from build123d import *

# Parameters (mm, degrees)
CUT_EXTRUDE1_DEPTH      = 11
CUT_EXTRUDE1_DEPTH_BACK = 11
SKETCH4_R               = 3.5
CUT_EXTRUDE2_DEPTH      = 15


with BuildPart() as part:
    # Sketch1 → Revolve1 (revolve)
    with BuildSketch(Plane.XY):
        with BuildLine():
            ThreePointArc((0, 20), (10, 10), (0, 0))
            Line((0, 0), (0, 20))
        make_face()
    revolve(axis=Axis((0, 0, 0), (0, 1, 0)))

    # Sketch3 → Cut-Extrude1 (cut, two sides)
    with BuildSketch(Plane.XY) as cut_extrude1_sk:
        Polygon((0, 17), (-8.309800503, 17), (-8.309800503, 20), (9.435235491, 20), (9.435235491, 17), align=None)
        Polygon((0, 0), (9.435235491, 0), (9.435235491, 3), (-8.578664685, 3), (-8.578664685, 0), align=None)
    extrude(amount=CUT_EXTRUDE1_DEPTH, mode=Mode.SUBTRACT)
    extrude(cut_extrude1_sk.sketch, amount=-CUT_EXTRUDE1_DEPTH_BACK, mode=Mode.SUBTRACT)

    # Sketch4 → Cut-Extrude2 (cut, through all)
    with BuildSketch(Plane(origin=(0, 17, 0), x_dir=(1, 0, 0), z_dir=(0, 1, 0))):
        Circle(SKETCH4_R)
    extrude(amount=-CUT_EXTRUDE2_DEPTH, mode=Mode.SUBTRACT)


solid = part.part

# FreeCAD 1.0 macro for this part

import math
import FreeCAD as App
import Part
import Sketcher
Q = App.Units.Quantity

doc = App.newDocument("Part")
params = doc.addObject("Spreadsheet::Sheet", "Params")
for row, (alias, value) in enumerate([
    ("sketch1_radius", "10 mm"),
    ("revolution_angle", "360 deg"),
    ("sketch2_height", "3 mm"),
    ("sketch3_diameter", "7 mm"),
], start=1):
    params.set(f"A{row}", alias)
    params.set(f"B{row}", "=" + value)
    params.setAlias(f"B{row}", alias)

body = doc.addObject("PartDesign::Body", "Body")

# Sketch on XY plane
sketch1 = body.newObject("Sketcher::SketchObject", "Sketch")
sketch1.AttachmentSupport = (doc.getObject("XY_Plane"), [""])
sketch1.MapMode = "FlatFace"
sketch1.addGeometry([
    Part.ArcOfCircle(Part.Circle(App.Vector(0, 10, 0), App.Vector(0, 0, 1), 10), math.radians(-90), math.radians(90)),
    Part.LineSegment(App.Vector(0, 20, 0), App.Vector(0, 0, 0)),
], False)
sketch1.addConstraint([
    Sketcher.Constraint("Coincident", 0, 1, 1, 2),
    Sketcher.Constraint("Coincident", 1, 1, 0, 2),
    Sketcher.Constraint("Vertical", 1),
    Sketcher.Constraint("Coincident", 0, 1, -1, 1),
    Sketcher.Constraint("PointOnObject", 0, 3, -2),
    Sketcher.Constraint("Radius", 0, Q("10 mm")),
])
sketch1.setExpression("Constraints[5]", "Params.sketch1_radius")
revolution = body.newObject("PartDesign::Revolution", "Revolution")
revolution.Profile = sketch1
revolution.ReferenceAxis = (sketch1, ["V_Axis"])
revolution.setExpression("Angle", "Params.revolution_angle")

# Sketch on XY plane
sketch2 = body.newObject("Sketcher::SketchObject", "Sketch001")
sketch2.AttachmentSupport = (doc.getObject("XY_Plane"), [""])
sketch2.MapMode = "FlatFace"
sketch2.addGeometry([
    Part.LineSegment(App.Vector(-8.3, 17, 0), App.Vector(9.4, 17, 0)),  # 0
    Part.LineSegment(App.Vector(9.4, 17, 0), App.Vector(9.4, 20, 0)),  # 1
    Part.LineSegment(App.Vector(9.4, 20, 0), App.Vector(-8.3, 20, 0)),  # 2
    Part.LineSegment(App.Vector(-8.3, 20, 0), App.Vector(-8.3, 17, 0)),  # 3
    Part.LineSegment(App.Vector(9.4, 0, 0), App.Vector(9.4, 3, 0)),  # 4
    Part.LineSegment(App.Vector(9.4, 3, 0), App.Vector(-8.6, 3, 0)),  # 5
    Part.LineSegment(App.Vector(-8.6, 3, 0), App.Vector(-8.6, 0, 0)),  # 6
    Part.LineSegment(App.Vector(-8.6, 0, 0), App.Vector(9.4, 0, 0)),  # 7
], False)
sketch2.addConstraint([
    Sketcher.Constraint("Coincident", 0, 2, 1, 1),
    Sketcher.Constraint("Coincident", 1, 2, 2, 1),
    Sketcher.Constraint("Coincident", 2, 2, 3, 1),
    Sketcher.Constraint("Coincident", 3, 2, 0, 1),
    Sketcher.Constraint("Coincident", 4, 2, 5, 1),
    Sketcher.Constraint("Coincident", 5, 2, 6, 1),
    Sketcher.Constraint("Coincident", 6, 2, 7, 1),
    Sketcher.Constraint("Coincident", 7, 2, 4, 1),
    Sketcher.Constraint("Horizontal", 0),
    Sketcher.Constraint("Vertical", 1),
    Sketcher.Constraint("Horizontal", 2),
    Sketcher.Constraint("Vertical", 3),
    Sketcher.Constraint("Vertical", 4),
    Sketcher.Constraint("Horizontal", 5),
    Sketcher.Constraint("Vertical", 6),
    Sketcher.Constraint("Horizontal", 7),
    Sketcher.Constraint("PointOnObject", 6, 2, -1),
    Sketcher.Constraint("Vertical", 1, 2, 4, 2),
    Sketcher.Constraint("Equal", 3, 4),
    Sketcher.Constraint("DistanceY", 1, 1, 1, 2, Q("3 mm")),
    Sketcher.Constraint("DistanceY", -1, 1, 0, 2, Q("17 mm")),
    Sketcher.Constraint("DistanceX", 5, 2, 5, 1, Q("18.0139 mm")),
    Sketcher.Constraint("DistanceX", 2, 2, -1, 1, Q("8.309801 mm")),
    Sketcher.Constraint("DistanceX", 0, 1, 0, 2, Q("17.745036 mm")),
])
sketch2.setExpression("Constraints[19]", "Params.sketch2_height")
pocket1 = body.newObject("PartDesign::Pocket", "Pocket")
pocket1.Profile = sketch2
pocket1.Type = "ThroughAll"
pocket1.Midplane = True

# Sketch on XZ plane
sketch3 = body.newObject("Sketcher::SketchObject", "Sketch002")
sketch3.AttachmentSupport = (doc.getObject("XZ_Plane"), [""])
sketch3.MapMode = "FlatFace"
sketch3.AttachmentOffset = App.Placement(App.Vector(0, 0, -17), App.Rotation())
sketch3.addGeometry(Part.Circle(App.Vector(0, 0, 0), App.Vector(0, 0, 1), 3.5), False)
sketch3.addConstraint([
    Sketcher.Constraint("Coincident", 0, 3, -1, 1),
    Sketcher.Constraint("Diameter", 0, Q("7 mm")),
])
sketch3.setExpression("Constraints[1]", "Params.sketch3_diameter")
pocket2 = body.newObject("PartDesign::Pocket", "Pocket001")
pocket2.Profile = sketch3
pocket2.Type = "ThroughAll"
pocket2.Reversed = True

doc.recompute()
